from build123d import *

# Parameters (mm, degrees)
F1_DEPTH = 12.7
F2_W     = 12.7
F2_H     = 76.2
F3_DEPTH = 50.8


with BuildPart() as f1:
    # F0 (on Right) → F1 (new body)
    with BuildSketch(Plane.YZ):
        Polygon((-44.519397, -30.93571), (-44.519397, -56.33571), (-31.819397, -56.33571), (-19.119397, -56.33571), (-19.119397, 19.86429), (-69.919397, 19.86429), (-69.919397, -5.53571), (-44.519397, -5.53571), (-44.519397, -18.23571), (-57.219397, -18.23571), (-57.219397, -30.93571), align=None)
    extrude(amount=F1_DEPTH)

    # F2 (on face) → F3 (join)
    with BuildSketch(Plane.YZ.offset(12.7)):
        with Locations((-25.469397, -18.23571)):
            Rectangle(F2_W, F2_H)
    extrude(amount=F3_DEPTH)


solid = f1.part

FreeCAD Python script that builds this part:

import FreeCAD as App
import Part
import Sketcher

V = App.Vector
Q = App.Units.Quantity

doc = App.newDocument("Part")
body = doc.addObject("PartDesign::Body", "Body")

# Sketch on YZ plane
sketch1 = body.newObject("Sketcher::SketchObject", "Sketch")
sketch1.AttachmentSupport = (doc.getObject("YZ_Plane"), [""])
sketch1.MapMode = "FlatFace"
sketch1.addGeometry(Part.LineSegment(V(-44.519397, -30.93571, 0), V(-44.519397, -56.33571, 0)), False)
sketch1.addGeometry(Part.LineSegment(V(-44.519397, -56.33571, 0), V(-19.119397, -56.33571, 0)), False)
sketch1.addGeometry(Part.LineSegment(V(-19.119397, -56.33571, 0), V(-19.119397, 19.86429, 0)), False)
sketch1.addGeometry(Part.LineSegment(V(-19.119397, 19.86429, 0), V(-69.919397, 19.86429, 0)), False)
sketch1.addGeometry(Part.LineSegment(V(-69.919397, 19.86429, 0), V(-69.919397, -5.53571, 0)), False)
sketch1.addGeometry(Part.LineSegment(V(-69.919397, -5.53571, 0), V(-44.519397, -5.53571, 0)), False)
sketch1.addGeometry(Part.LineSegment(V(-44.519397, -5.53571, 0), V(-44.519397, -18.23571, 0)), False)
sketch1.addGeometry(Part.LineSegment(V(-44.519397, -18.23571, 0), V(-57.219397, -18.23571, 0)), False)
sketch1.addGeometry(Part.LineSegment(V(-57.219397, -18.23571, 0), V(-57.219397, -30.93571, 0)), False)
sketch1.addGeometry(Part.LineSegment(V(-57.219397, -30.93571, 0), V(-44.519397, -30.93571, 0)), False)
sketch1.addConstraint(Sketcher.Constraint("Coincident", 0, 2, 1, 1))
sketch1.addConstraint(Sketcher.Constraint("Coincident", 1, 2, 2, 1))
sketch1.addConstraint(Sketcher.Constraint("Coincident", 2, 2, 3, 1))
sketch1.addConstraint(Sketcher.Constraint("Coincident", 3, 2, 4, 1))
sketch1.addConstraint(Sketcher.Constraint("Coincident", 4, 2, 5, 1))
sketch1.addConstraint(Sketcher.Constraint("Coincident", 5, 2, 6, 1))
sketch1.addConstraint(Sketcher.Constraint("Coincident", 6, 2, 7, 1))
sketch1.addConstraint(Sketcher.Constraint("Coincident", 7, 2, 8, 1))
sketch1.addConstraint(Sketcher.Constraint("Coincident", 8, 2, 9, 1))
sketch1.addConstraint(Sketcher.Constraint("Coincident", 9, 2, 0, 1))
sketch1.addConstraint(Sketcher.Constraint("Vertical", 0))
sketch1.addConstraint(Sketcher.Constraint("Horizontal", 1))
sketch1.addConstraint(Sketcher.Constraint("Vertical", 2))
sketch1.addConstraint(Sketcher.Constraint("Horizontal", 3))
sketch1.addConstraint(Sketcher.Constraint("Vertical", 4))
sketch1.addConstraint(Sketcher.Constraint("Horizontal", 5))
sketch1.addConstraint(Sketcher.Constraint("Vertical", 6))
sketch1.addConstraint(Sketcher.Constraint("Horizontal", 7))
sketch1.addConstraint(Sketcher.Constraint("Vertical", 8))
sketch1.addConstraint(Sketcher.Constraint("Horizontal", 9))
sketch1.addConstraint(Sketcher.Constraint("Vertical", 0, 2, 5, 2))
sketch1.addConstraint(Sketcher.Constraint("Equal", 1, 5))
sketch1.addConstraint(Sketcher.Constraint("Equal", 5, 0))
sketch1.addConstraint(Sketcher.Constraint("Equal", 0, 4))
sketch1.addConstraint(Sketcher.Constraint("Equal", 9, 6))
sketch1.addConstraint(Sketcher.Constraint("Equal", 6, 8))
sketch1.addConstraint(Sketcher.Constraint("DistanceX", 1, 1, 1, 2, Q("1 in")))
sketch1.addConstraint(Sketcher.Constraint("DistanceY", 2, 1, 2, 2, Q("3 in")))
sketch1.addConstraint(Sketcher.Constraint("DistanceY", 0, 2, -1, 1, 56.33571))
sketch1.addConstraint(Sketcher.Constraint("DistanceX", 0, 2, -1, 1, 44.519397))
pad1 = body.newObject("PartDesign::Pad", "Pad")
pad1.Profile = sketch1
pad1.Length = Q("0.5 in")

# Sketch on YZ plane
sketch2 = body.newObject("Sketcher::SketchObject", "Sketch001")
sketch2.AttachmentSupport = (doc.getObject("YZ_Plane"), [""])
sketch2.MapMode = "FlatFace"
sketch2.AttachmentOffset = App.Placement(V(0, 0, 0.5 * 25.4), App.Rotation())
sketch2.addGeometry(Part.LineSegment(V(-31.819397, 19.86429, 0), V(-31.819397, -56.33571, 0)), False)
sketch2.addGeometry(Part.LineSegment(V(-31.819397, -56.33571, 0), V(-19.119397, -56.33571, 0)), False)
sketch2.addGeometry(Part.LineSegment(V(-19.119397, -56.33571, 0), V(-19.119397, 19.86429, 0)), False)
sketch2.addGeometry(Part.LineSegment(V(-19.119397, 19.86429, 0), V(-31.819397, 19.86429, 0)), False)
sketch2.addConstraint(Sketcher.Constraint("Coincident", 0, 2, 1, 1))
sketch2.addConstraint(Sketcher.Constraint("Coincident", 1, 2, 2, 1))
sketch2.addConstraint(Sketcher.Constraint("Coincident", 2, 2, 3, 1))
sketch2.addConstraint(Sketcher.Constraint("Coincident", 3, 2, 0, 1))
sketch2.addConstraint(Sketcher.Constraint("Vertical", 0))
sketch2.addConstraint(Sketcher.Constraint("Horizontal", 1))
sketch2.addConstraint(Sketcher.Constraint("Vertical", 2))
sketch2.addConstraint(Sketcher.Constraint("Horizontal", 3))
sketch2.addConstraint(Sketcher.Constraint("DistanceY", 0, 2, 0, 1, Q("3 in")))
sketch2.addConstraint(Sketcher.Constraint("DistanceX", 1, 1, 1, 2, Q("0.5 in")))
sketch2.addConstraint(Sketcher.Constraint("DistanceY", 0, 2, -1, 1, 56.33571))
sketch2.addConstraint(Sketcher.Constraint("DistanceX", 0, 2, -1, 1, 31.819397))
pad2 = body.newObject("PartDesign::Pad", "Pad001")
pad2.Profile = sketch2
pad2.Length = Q("2 in")

doc.recompute()
